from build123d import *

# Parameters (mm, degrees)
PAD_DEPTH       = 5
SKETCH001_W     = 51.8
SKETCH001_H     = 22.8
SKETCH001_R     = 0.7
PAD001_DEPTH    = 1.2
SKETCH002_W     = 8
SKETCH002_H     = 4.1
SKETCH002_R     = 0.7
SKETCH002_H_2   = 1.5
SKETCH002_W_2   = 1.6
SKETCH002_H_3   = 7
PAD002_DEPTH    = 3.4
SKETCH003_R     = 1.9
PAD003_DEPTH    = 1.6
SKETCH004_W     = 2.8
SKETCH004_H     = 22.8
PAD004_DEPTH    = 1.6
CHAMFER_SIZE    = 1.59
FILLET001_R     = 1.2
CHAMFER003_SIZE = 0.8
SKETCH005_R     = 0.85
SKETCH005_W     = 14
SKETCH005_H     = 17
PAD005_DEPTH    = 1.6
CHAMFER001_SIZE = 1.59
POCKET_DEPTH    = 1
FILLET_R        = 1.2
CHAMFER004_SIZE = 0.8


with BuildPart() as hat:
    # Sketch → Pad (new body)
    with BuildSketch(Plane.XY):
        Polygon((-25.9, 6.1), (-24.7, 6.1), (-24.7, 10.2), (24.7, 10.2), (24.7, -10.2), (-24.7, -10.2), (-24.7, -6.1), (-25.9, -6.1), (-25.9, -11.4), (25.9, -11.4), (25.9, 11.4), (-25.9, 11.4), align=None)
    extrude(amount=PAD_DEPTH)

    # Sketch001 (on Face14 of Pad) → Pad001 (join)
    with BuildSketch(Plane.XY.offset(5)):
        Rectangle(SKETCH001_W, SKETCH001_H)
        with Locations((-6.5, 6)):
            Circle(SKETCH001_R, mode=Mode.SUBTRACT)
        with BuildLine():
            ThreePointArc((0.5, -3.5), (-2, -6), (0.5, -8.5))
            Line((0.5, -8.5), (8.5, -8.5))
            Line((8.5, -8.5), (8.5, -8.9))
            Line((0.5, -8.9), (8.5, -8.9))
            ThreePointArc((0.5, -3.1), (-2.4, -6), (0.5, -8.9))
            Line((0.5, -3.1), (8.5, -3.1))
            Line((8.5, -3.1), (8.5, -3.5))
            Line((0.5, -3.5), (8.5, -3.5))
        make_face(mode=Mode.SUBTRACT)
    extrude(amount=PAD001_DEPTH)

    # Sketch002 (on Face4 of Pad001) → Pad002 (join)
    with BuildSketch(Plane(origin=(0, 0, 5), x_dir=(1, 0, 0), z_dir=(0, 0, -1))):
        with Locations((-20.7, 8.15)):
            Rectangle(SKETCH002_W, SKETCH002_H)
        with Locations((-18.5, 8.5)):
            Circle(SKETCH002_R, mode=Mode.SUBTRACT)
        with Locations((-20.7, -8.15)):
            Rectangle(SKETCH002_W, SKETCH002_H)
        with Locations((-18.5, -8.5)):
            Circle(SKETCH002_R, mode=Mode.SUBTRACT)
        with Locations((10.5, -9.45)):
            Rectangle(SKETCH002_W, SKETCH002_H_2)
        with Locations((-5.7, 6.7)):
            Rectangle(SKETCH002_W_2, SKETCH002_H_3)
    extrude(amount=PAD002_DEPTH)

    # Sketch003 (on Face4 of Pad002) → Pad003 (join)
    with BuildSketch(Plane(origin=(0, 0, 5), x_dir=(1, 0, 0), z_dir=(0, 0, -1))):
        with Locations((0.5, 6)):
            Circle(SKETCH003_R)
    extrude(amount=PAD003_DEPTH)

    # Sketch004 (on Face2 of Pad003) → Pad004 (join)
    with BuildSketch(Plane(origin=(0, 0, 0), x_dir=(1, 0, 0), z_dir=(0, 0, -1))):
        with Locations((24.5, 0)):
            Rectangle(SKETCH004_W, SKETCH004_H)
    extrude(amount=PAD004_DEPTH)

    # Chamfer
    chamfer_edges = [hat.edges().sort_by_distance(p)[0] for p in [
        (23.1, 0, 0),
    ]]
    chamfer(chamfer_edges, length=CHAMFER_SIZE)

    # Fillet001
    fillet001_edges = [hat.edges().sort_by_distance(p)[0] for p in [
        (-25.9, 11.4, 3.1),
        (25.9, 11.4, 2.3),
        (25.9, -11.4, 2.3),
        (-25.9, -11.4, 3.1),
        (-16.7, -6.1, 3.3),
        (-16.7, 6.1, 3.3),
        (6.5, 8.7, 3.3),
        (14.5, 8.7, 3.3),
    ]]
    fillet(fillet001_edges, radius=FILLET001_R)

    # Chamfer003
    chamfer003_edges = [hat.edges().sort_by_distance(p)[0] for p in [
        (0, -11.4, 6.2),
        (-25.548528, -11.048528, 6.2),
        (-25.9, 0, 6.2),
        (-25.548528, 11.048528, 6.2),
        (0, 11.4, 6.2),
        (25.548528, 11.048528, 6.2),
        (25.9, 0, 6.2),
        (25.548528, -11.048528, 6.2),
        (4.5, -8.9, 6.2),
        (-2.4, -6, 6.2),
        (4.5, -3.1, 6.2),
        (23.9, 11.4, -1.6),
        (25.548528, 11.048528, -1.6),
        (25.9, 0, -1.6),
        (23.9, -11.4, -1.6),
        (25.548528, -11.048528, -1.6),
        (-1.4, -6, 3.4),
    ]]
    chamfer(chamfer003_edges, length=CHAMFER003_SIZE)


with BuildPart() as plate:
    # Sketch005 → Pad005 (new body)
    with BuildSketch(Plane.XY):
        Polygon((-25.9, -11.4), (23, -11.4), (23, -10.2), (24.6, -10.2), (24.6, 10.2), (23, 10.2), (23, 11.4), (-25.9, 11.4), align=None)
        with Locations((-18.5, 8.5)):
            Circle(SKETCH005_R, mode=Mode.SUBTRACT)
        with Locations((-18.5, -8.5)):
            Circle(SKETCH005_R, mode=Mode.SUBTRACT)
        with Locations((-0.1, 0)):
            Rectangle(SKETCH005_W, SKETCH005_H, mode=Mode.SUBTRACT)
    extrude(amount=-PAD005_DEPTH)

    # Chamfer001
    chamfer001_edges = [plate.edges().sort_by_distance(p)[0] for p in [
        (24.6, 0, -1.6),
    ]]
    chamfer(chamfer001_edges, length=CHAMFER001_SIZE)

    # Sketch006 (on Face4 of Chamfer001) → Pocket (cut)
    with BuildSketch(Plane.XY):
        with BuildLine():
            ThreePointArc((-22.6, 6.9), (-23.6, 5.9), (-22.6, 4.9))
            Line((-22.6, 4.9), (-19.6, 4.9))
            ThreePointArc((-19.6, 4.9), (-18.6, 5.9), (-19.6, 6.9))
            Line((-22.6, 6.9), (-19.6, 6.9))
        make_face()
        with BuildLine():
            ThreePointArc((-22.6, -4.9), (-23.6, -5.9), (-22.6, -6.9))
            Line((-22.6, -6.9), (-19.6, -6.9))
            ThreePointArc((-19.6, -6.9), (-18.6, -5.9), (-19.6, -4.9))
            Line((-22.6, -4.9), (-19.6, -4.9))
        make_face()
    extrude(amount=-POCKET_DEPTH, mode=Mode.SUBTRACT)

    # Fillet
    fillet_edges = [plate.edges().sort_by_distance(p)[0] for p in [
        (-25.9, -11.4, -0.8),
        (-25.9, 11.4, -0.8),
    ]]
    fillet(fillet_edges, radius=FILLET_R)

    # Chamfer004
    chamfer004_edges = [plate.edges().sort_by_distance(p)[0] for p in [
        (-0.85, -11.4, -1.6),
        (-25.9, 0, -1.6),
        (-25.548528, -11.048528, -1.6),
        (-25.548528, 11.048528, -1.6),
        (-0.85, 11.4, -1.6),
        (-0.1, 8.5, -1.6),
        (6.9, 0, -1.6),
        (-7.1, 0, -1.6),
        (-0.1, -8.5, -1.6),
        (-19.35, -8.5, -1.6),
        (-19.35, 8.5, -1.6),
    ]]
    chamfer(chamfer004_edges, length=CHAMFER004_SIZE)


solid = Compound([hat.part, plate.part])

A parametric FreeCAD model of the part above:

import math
import FreeCAD as App
import Part
import Sketcher


def edges_at(feature, points):
    """Names of the edges that pass closest to the given points."""
    edges = feature.Shape.Edges
    near = lambda p: min(range(len(edges)), key=lambda i: edges[i].distToShape(Part.Vertex(*p))[0])
    return sorted({f"Edge{near(p) + 1}" for p in points})

doc = App.newDocument("Part")
body = doc.addObject("PartDesign::Body", "Body")

sketch1 = doc.addObject("Sketcher::SketchObject", "Sketch")
body.addObject(sketch1)
sketch1.AttachmentSupport = (doc.XY_Plane, [""])
sketch1.MapMode = "FlatFace"
sketch1.addGeometry([
    Part.LineSegment(App.Vector(-25.9, 6.1, 0), App.Vector(-24.7, 6.1, 0)),
    Part.LineSegment(App.Vector(-24.7, 6.1, 0), App.Vector(-24.7, 10.2, 0)),
    Part.LineSegment(App.Vector(-24.7, 10.2, 0), App.Vector(24.7, 10.2, 0)),
    Part.LineSegment(App.Vector(24.7, 10.2, 0), App.Vector(24.7, -10.2, 0)),
    Part.LineSegment(App.Vector(24.7, -10.2, 0), App.Vector(-24.7, -10.2, 0)),
    Part.LineSegment(App.Vector(-24.7, -10.2, 0), App.Vector(-24.7, -6.1, 0)),
    Part.LineSegment(App.Vector(-24.7, -6.1, 0), App.Vector(-25.9, -6.1, 0)),
    Part.LineSegment(App.Vector(-25.9, -6.1, 0), App.Vector(-25.9, -11.4, 0)),
    Part.LineSegment(App.Vector(-25.9, -11.4, 0), App.Vector(25.9, -11.4, 0)),
    Part.LineSegment(App.Vector(25.9, -11.4, 0), App.Vector(25.9, 11.4, 0)),
    Part.LineSegment(App.Vector(25.9, 11.4, 0), App.Vector(-25.9, 11.4, 0)),
    Part.LineSegment(App.Vector(-25.9, 11.4, 0), App.Vector(-25.9, 6.1, 0)),
], False)
sketch1.addConstraint([
    Sketcher.Constraint("Coincident", 0, 2, 1, 1),
    Sketcher.Constraint("Coincident", 1, 2, 2, 1),
    Sketcher.Constraint("Coincident", 2, 2, 3, 1),
    Sketcher.Constraint("Coincident", 3, 2, 4, 1),
    Sketcher.Constraint("Coincident", 4, 2, 5, 1),
    Sketcher.Constraint("Coincident", 5, 2, 6, 1),
    Sketcher.Constraint("Coincident", 6, 2, 7, 1),
    Sketcher.Constraint("Coincident", 7, 2, 8, 1),
    Sketcher.Constraint("Coincident", 8, 2, 9, 1),
    Sketcher.Constraint("Coincident", 9, 2, 10, 1),
    Sketcher.Constraint("Coincident", 10, 2, 11, 1),
    Sketcher.Constraint("Coincident", 11, 2, 0, 1),
    Sketcher.Constraint("Horizontal", 0),
    Sketcher.Constraint("Vertical", 1),
    Sketcher.Constraint("Horizontal", 2),
    Sketcher.Constraint("Vertical", 3),
    Sketcher.Constraint("Horizontal", 4),
    Sketcher.Constraint("Vertical", 5),
    Sketcher.Constraint("Horizontal", 6),
    Sketcher.Constraint("Vertical", 7),
    Sketcher.Constraint("Horizontal", 8),
    Sketcher.Constraint("Vertical", 9),
    Sketcher.Constraint("Horizontal", 10),
    Sketcher.Constraint("Vertical", 11),
    Sketcher.Constraint("Symmetric", 1, 2, 3, 2, -1, 1),
    Sketcher.Constraint("Symmetric", 7, 2, 9, 2, -1, 1),
    Sketcher.Constraint("Symmetric", 0, 2, 5, 2, -1),
    Sketcher.Constraint("Vertical", 7, 2, 10, 2),
    Sketcher.Constraint("DistanceX", 0, 1, 0, 2, 1.2),
    Sketcher.Constraint("DistanceX", 2, 1, 2, 2, 49.4),
    Sketcher.Constraint("DistanceY", 1, 1, 1, 2, 4.1),
    Sketcher.Constraint("DistanceY", 3, 2, 3, 1, 20.4),
    Sketcher.Constraint("DistanceY", 7, 2, 7, 1, 5.3),
])
pad1 = doc.addObject("PartDesign::Pad", "Pad")
body.addObject(pad1)
pad1.Profile = sketch1
pad1.Length = 5

sketch2 = doc.addObject("Sketcher::SketchObject", "Sketch001")
body.addObject(sketch2)
sketch2.AttachmentSupport = (doc.XY_Plane, [""])
sketch2.MapMode = "FlatFace"
sketch2.AttachmentOffset = App.Placement(App.Vector(0, 0, 5), App.Rotation())
sketch2.addGeometry([
    Part.LineSegment(App.Vector(-25.9, 11.4, 0), App.Vector(-25.9, -11.4, 0)),
    Part.LineSegment(App.Vector(-25.9, -11.4, 0), App.Vector(25.9, -11.4, 0)),
    Part.LineSegment(App.Vector(25.9, -11.4, 0), App.Vector(25.9, 11.4, 0)),
    Part.LineSegment(App.Vector(25.9, 11.4, 0), App.Vector(-25.9, 11.4, 0)),
    Part.LineSegment(App.Vector(8.5, -3.5, 0), App.Vector(0.5, -3.5, 0)),
    Part.ArcOfCircle(Part.Circle(App.Vector(0.5, -6, 0), App.Vector(0, 0, 1), 2.5), math.radians(90), math.radians(270)),
    Part.LineSegment(App.Vector(0.5, -8.5, 0), App.Vector(8.5, -8.5, 0)),
    Part.LineSegment(App.Vector(8.5, -8.5, 0), App.Vector(8.5, -8.9, 0)),
    Part.LineSegment(App.Vector(8.5, -8.9, 0), App.Vector(0.5, -8.9, 0)),
    Part.ArcOfCircle(Part.Circle(App.Vector(0.5, -6, 0), App.Vector(0, 0, 1), 2.9), math.radians(90), math.radians(270)),
    Part.LineSegment(App.Vector(0.5, -3.1, 0), App.Vector(8.5, -3.1, 0)),
    Part.LineSegment(App.Vector(8.5, -3.1, 0), App.Vector(8.5, -3.5, 0)),
    Part.Circle(App.Vector(-6.5, 6, 0), App.Vector(0, 0, 1), 0.7),
], False)
sketch2.addConstraint([
    Sketcher.Constraint("Coincident", 0, 2, 1, 1),
    Sketcher.Constraint("Coincident", 1, 2, 2, 1),
    Sketcher.Constraint("Coincident", 2, 2, 3, 1),
    Sketcher.Constraint("Coincident", 3, 2, 0, 1),
    Sketcher.Constraint("Tangent", 4, 2, 5, 1),
    Sketcher.Constraint("Tangent", 5, 2, 6, 1),
    Sketcher.Constraint("Coincident", 6, 2, 7, 1),
    Sketcher.Constraint("Coincident", 7, 2, 8, 1),
    Sketcher.Constraint("Tangent", 8, 2, 9, 2),
    Sketcher.Constraint("Tangent", 9, 1, 10, 1),
    Sketcher.Constraint("Coincident", 10, 2, 11, 1),
    Sketcher.Constraint("Coincident", 11, 2, 4, 1),
    Sketcher.Constraint("Vertical", 0),
    Sketcher.Constraint("Horizontal", 1),
    Sketcher.Constraint("Vertical", 2),
    Sketcher.Constraint("Horizontal", 3),
    Sketcher.Constraint("Horizontal", 4),
    Sketcher.Constraint("Horizontal", 6),
    Sketcher.Constraint("Vertical", 7),
    Sketcher.Constraint("Horizontal", 8),
    Sketcher.Constraint("Horizontal", 10),
    Sketcher.Constraint("Vertical", 11),
    Sketcher.Constraint("Coincident", 9, 3, 5, 3),
    Sketcher.Constraint("Symmetric", 0, 2, 2, 2, -1, 1),
    Sketcher.Constraint("Vertical", 7, 2, 10, 2),
    Sketcher.Constraint("Diameter", 12, 1.4),
    Sketcher.Constraint("Radius", 5, 2.5),
    Sketcher.Constraint("Radius", 9, 2.9),
    Sketcher.Constraint("DistanceX", 4, 2, 4, 1, 8.0),
    Sketcher.Constraint("DistanceX", 1, 1, 1, 2, 51.8),
    Sketcher.Constraint("DistanceY", 0, 2, 0, 1, 22.8),
    Sketcher.Constraint("DistanceY", 5, 3, -1, 1, 6.0),
    Sketcher.Constraint("DistanceY", -1, 1, 12, 3, 6.0),
    Sketcher.Constraint("DistanceX", 12, 3, 5, 3, 7.0),
    Sketcher.Constraint("DistanceX", -1, 1, 5, 3, 0.5),
])
pad2 = doc.addObject("PartDesign::Pad", "Pad001")
body.addObject(pad2)
pad2.Profile = sketch2
pad2.Length = 1.2

sketch3 = doc.addObject("Sketcher::SketchObject", "Sketch002")
body.addObject(sketch3)
sketch3.AttachmentSupport = (doc.XY_Plane, [""])
sketch3.MapMode = "FlatFace"
sketch3.AttachmentOffset = App.Placement(App.Vector(0, 0, 5), App.Rotation())
sketch3.addGeometry([
    Part.LineSegment(App.Vector(-24.7, -10.2, 0), App.Vector(-24.7, -6.1, 0)),
    Part.LineSegment(App.Vector(-24.7, -6.1, 0), App.Vector(-16.7, -6.1, 0)),
    Part.LineSegment(App.Vector(-16.7, -6.1, 0), App.Vector(-16.7, -10.2, 0)),
    Part.LineSegment(App.Vector(-16.7, -10.2, 0), App.Vector(-24.7, -10.2, 0)),
    Part.Circle(App.Vector(-18.5, -8.5, 0), App.Vector(0, 0, 1), 0.7),
    Part.LineSegment(App.Vector(-24.7, 6.1, 0), App.Vector(-24.7, 10.2, 0)),
    Part.LineSegment(App.Vector(-24.7, 10.2, 0), App.Vector(-16.7, 10.2, 0)),
    Part.LineSegment(App.Vector(-16.7, 10.2, 0), App.Vector(-16.7, 6.1, 0)),
    Part.LineSegment(App.Vector(-16.7, 6.1, 0), App.Vector(-24.7, 6.1, 0)),
    Part.Circle(App.Vector(-18.5, 8.5, 0), App.Vector(0, 0, 1), 0.7),
    Part.LineSegment(App.Vector(6.5, 8.7, 0), App.Vector(6.5, 10.2, 0)),
    Part.LineSegment(App.Vector(6.5, 10.2, 0), App.Vector(14.5, 10.2, 0)),
    Part.LineSegment(App.Vector(14.5, 10.2, 0), App.Vector(14.5, 8.7, 0)),
    Part.LineSegment(App.Vector(14.5, 8.7, 0), App.Vector(6.5, 8.7, 0)),
    Part.LineSegment(App.Vector(-6.5, -10.2, 0), App.Vector(-6.5, -3.2, 0)),
    Part.LineSegment(App.Vector(-6.5, -3.2, 0), App.Vector(-4.9, -3.2, 0)),
    Part.LineSegment(App.Vector(-4.9, -3.2, 0), App.Vector(-4.9, -10.2, 0)),
    Part.LineSegment(App.Vector(-4.9, -10.2, 0), App.Vector(-6.5, -10.2, 0)),
], False)
sketch3.addConstraint([
    Sketcher.Constraint("Coincident", 0, 2, 1, 1),
    Sketcher.Constraint("Coincident", 1, 2, 2, 1),
    Sketcher.Constraint("Coincident", 2, 2, 3, 1),
    Sketcher.Constraint("Coincident", 3, 2, 0, 1),
    Sketcher.Constraint("Coincident", 5, 2, 6, 1),
    Sketcher.Constraint("Coincident", 6, 2, 7, 1),
    Sketcher.Constraint("Coincident", 7, 2, 8, 1),
    Sketcher.Constraint("Coincident", 8, 2, 5, 1),
    Sketcher.Constraint("Coincident", 10, 2, 11, 1),
    Sketcher.Constraint("Coincident", 11, 2, 12, 1),
    Sketcher.Constraint("Coincident", 12, 2, 13, 1),
    Sketcher.Constraint("Coincident", 13, 2, 10, 1),
    Sketcher.Constraint("Coincident", 14, 2, 15, 1),
    Sketcher.Constraint("Coincident", 15, 2, 16, 1),
    Sketcher.Constraint("Coincident", 16, 2, 17, 1),
    Sketcher.Constraint("Coincident", 17, 2, 14, 1),
    Sketcher.Constraint("Vertical", 0),
    Sketcher.Constraint("Horizontal", 1),
    Sketcher.Constraint("Vertical", 2),
    Sketcher.Constraint("Horizontal", 3),
    Sketcher.Constraint("Vertical", 5),
    Sketcher.Constraint("Horizontal", 6),
    Sketcher.Constraint("Vertical", 7),
    Sketcher.Constraint("Horizontal", 8),
    Sketcher.Constraint("Vertical", 10),
    Sketcher.Constraint("Horizontal", 11),
    Sketcher.Constraint("Vertical", 12),
    Sketcher.Constraint("Horizontal", 13),
    Sketcher.Constraint("Vertical", 14),
    Sketcher.Constraint("Horizontal", 15),
    Sketcher.Constraint("Vertical", 16),
    Sketcher.Constraint("Horizontal", 17),
    Sketcher.Constraint("Equal", 4, 9),
    Sketcher.Constraint("Symmetric", 10, 2, 17, 2, -1, 1),
    Sketcher.Constraint("Symmetric", 4, 3, 9, 3, -1),
    Sketcher.Constraint("Symmetric", 3, 2, 5, 2, -1),
    Sketcher.Constraint("Symmetric", 1, 2, 7, 2, -1),
    Sketcher.Constraint("Horizontal", 6, 2, 10, 2),
    Sketcher.Constraint("Equal", 8, 11),
    Sketcher.Constraint("Diameter", 4, 1.4),
    Sketcher.Constraint("DistanceX", 1, 1, 1, 2, 8.0),
    Sketcher.Constraint("DistanceY", 14, 1, 14, 2, 7.0),
    Sketcher.Constraint("DistanceX", 15, 1, 15, 2, 1.6),
    Sketcher.Constraint("DistanceY", 0, 1, 0, 2, 4.1),
    Sketcher.Constraint("DistanceY", 10, 1, 10, 2, 1.5),
    Sketcher.Constraint("DistanceY", 4, 3, 9, 3, 17.0),
    Sketcher.Constraint("DistanceX", 9, 3, 10, 2, 25.0),
    Sketcher.Constraint("DistanceX", 4, 3, 14, 2, 12.0),
    Sketcher.Constraint("DistanceX", 0, 2, -1, 1, 24.7),
    Sketcher.Constraint("DistanceY", 0, 2, -1, 1, 6.1),
])
pad3 = doc.addObject("PartDesign::Pad", "Pad002")
body.addObject(pad3)
pad3.Profile = sketch3
pad3.Length = 3.4
pad3.Reversed = True

sketch4 = doc.addObject("Sketcher::SketchObject", "Sketch003")
body.addObject(sketch4)
sketch4.AttachmentSupport = (doc.XY_Plane, [""])
sketch4.MapMode = "FlatFace"
sketch4.AttachmentOffset = App.Placement(App.Vector(0, 0, 5), App.Rotation())
sketch4.addGeometry(Part.Circle(App.Vector(0.5, -6, 0), App.Vector(0, 0, 1), 1.9), False)
sketch4.addConstraint([
    Sketcher.Constraint("Diameter", 0, 3.8),
    Sketcher.Constraint("DistanceY", 0, 3, -1, 1, 6.0),
    Sketcher.Constraint("DistanceX", -1, 1, 0, 3, 0.5),
])
pad4 = doc.addObject("PartDesign::Pad", "Pad003")
body.addObject(pad4)
pad4.Profile = sketch4
pad4.Length = 1.6
pad4.Reversed = True

sketch5 = doc.addObject("Sketcher::SketchObject", "Sketch004")
body.addObject(sketch5)
sketch5.AttachmentSupport = (doc.XY_Plane, [""])
sketch5.MapMode = "FlatFace"
sketch5.addGeometry([
    Part.LineSegment(App.Vector(23.1, -11.4, 0), App.Vector(23.1, 11.4, 0)),
    Part.LineSegment(App.Vector(23.1, 11.4, 0), App.Vector(25.9, 11.4, 0)),
    Part.LineSegment(App.Vector(25.9, 11.4, 0), App.Vector(25.9, -11.4, 0)),
    Part.LineSegment(App.Vector(25.9, -11.4, 0), App.Vector(23.1, -11.4, 0)),
], False)
sketch5.addConstraint([
    Sketcher.Constraint("Coincident", 0, 2, 1, 1),
    Sketcher.Constraint("Coincident", 1, 2, 2, 1),
    Sketcher.Constraint("Coincident", 2, 2, 3, 1),
    Sketcher.Constraint("Coincident", 3, 2, 0, 1),
    Sketcher.Constraint("Vertical", 0),
    Sketcher.Constraint("Horizontal", 1),
    Sketcher.Constraint("Vertical", 2),
    Sketcher.Constraint("Horizontal", 3),
    Sketcher.Constraint("DistanceX", 1, 1, 1, 2, 2.8),
    Sketcher.Constraint("DistanceY", 0, 1, 0, 2, 22.8),
    Sketcher.Constraint("DistanceX", -1, 1, 0, 2, 23.1),
    Sketcher.Constraint("DistanceY", -1, 1, 0, 2, 11.4),
])
pad5 = doc.addObject("PartDesign::Pad", "Pad004")
body.addObject(pad5)
pad5.Profile = sketch5
pad5.Length = 1.6
pad5.Reversed = True
doc.recompute()

chamfer = doc.addObject("PartDesign::Chamfer", "Chamfer")
body.addObject(chamfer)
chamfer.Base = (pad5, edges_at(pad5, [(23.1, 0, 0)]))
chamfer.Size = 1.59
doc.recompute()

fillet = doc.addObject("PartDesign::Fillet", "Fillet")
body.addObject(fillet)
fillet.Base = (chamfer, edges_at(chamfer, [
    (-25.9, 11.4, 3.1),
    (25.9, 11.4, 2.3),
    (25.9, -11.4, 2.3),
    (-25.9, -11.4, 3.1),
    (-16.7, -6.1, 3.3),
    (-16.7, 6.1, 3.3),
    (6.5, 8.7, 3.3),
    (14.5, 8.7, 3.3),
]))
fillet.Radius = 1.2
doc.recompute()

chamfer2 = doc.addObject("PartDesign::Chamfer", "Chamfer001")
body.addObject(chamfer2)
chamfer2.Base = (fillet, edges_at(fillet, [
    (0, -11.4, 6.2),
    (-25.549, -11.049, 6.2),
    (-25.9, 0, 6.2),
    (-25.549, 11.049, 6.2),
    (0, 11.4, 6.2),
    (25.549, 11.049, 6.2),
    (25.9, 0, 6.2),
    (25.549, -11.049, 6.2),
    (4.5, -8.9, 6.2),
    (-2.4, -6, 6.2),
    (4.5, -3.1, 6.2),
    (23.9, 11.4, -1.6),
    (25.549, 11.049, -1.6),
    (25.9, 0, -1.6),
    (23.9, -11.4, -1.6),
    (25.549, -11.049, -1.6),
    (-1.4, -6, 3.4),
]))
chamfer2.Size = 0.8
body2 = doc.addObject("PartDesign::Body", "Body001")

sketch6 = doc.addObject("Sketcher::SketchObject", "Sketch005")
body2.addObject(sketch6)
sketch6.AttachmentSupport = (doc.getObject("XY_Plane001"), [""])
sketch6.MapMode = "FlatFace"
sketch6.addGeometry([
    Part.LineSegment(App.Vector(-25.9, -11.4, 0), App.Vector(23, -11.4, 0)),
    Part.LineSegment(App.Vector(23, -11.4, 0), App.Vector(23, -10.2, 0)),
    Part.LineSegment(App.Vector(23, -10.2, 0), App.Vector(24.6, -10.2, 0)),
    Part.LineSegment(App.Vector(24.6, -10.2, 0), App.Vector(24.6, 10.2, 0)),
    Part.LineSegment(App.Vector(24.6, 10.2, 0), App.Vector(23, 10.2, 0)),
    Part.LineSegment(App.Vector(23, 10.2, 0), App.Vector(23, 11.4, 0)),
    Part.LineSegment(App.Vector(23, 11.4, 0), App.Vector(-25.9, 11.4, 0)),
    Part.LineSegment(App.Vector(-25.9, 11.4, 0), App.Vector(-25.9, -11.4, 0)),
    Part.Circle(App.Vector(-18.5, -8.5, 0), App.Vector(0, 0, 1), 0.8),
    Part.Circle(App.Vector(-18.5, 8.5, 0), App.Vector(0, 0, 1), 0.8),
    Part.LineSegment(App.Vector(6.9, -8.5, 0), App.Vector(-7.1, -8.5, 0)),
    Part.LineSegment(App.Vector(-7.1, -8.5, 0), App.Vector(-7.1, 8.5, 0)),
    Part.LineSegment(App.Vector(-7.1, 8.5, 0), App.Vector(6.9, 8.5, 0)),
    Part.LineSegment(App.Vector(6.9, 8.5, 0), App.Vector(6.9, -8.5, 0)),
], False)
sketch6.addConstraint([
    Sketcher.Constraint("Coincident", 0, 2, 1, 1),
    Sketcher.Constraint("Coincident", 1, 2, 2, 1),
    Sketcher.Constraint("Coincident", 2, 2, 3, 1),
    Sketcher.Constraint("Coincident", 3, 2, 4, 1),
    Sketcher.Constraint("Coincident", 4, 2, 5, 1),
    Sketcher.Constraint("Coincident", 5, 2, 6, 1),
    Sketcher.Constraint("Coincident", 6, 2, 7, 1),
    Sketcher.Constraint("Coincident", 7, 2, 0, 1),
    Sketcher.Constraint("Coincident", 10, 2, 11, 1),
    Sketcher.Constraint("Coincident", 11, 2, 12, 1),
    Sketcher.Constraint("Coincident", 12, 2, 13, 1),
    Sketcher.Constraint("Coincident", 13, 2, 10, 1),
    Sketcher.Constraint("Horizontal", 0),
    Sketcher.Constraint("Vertical", 1),
    Sketcher.Constraint("Horizontal", 2),
    Sketcher.Constraint("Vertical", 3),
    Sketcher.Constraint("Horizontal", 4),
    Sketcher.Constraint("Vertical", 5),
    Sketcher.Constraint("Horizontal", 6),
    Sketcher.Constraint("Vertical", 7),
    Sketcher.Constraint("Horizontal", 10),
    Sketcher.Constraint("Vertical", 11),
    Sketcher.Constraint("Horizontal", 12),
    Sketcher.Constraint("Vertical", 13),
    Sketcher.Constraint("Equal", 8, 9),
    Sketcher.Constraint("Symmetric", 8, 3, 9, 3, -1),
    Sketcher.Constraint("Symmetric", 1, 2, 4, 2, -1),
    Sketcher.Constraint("Horizontal", 8, 3, 10, 2),
    Sketcher.Constraint("Horizontal", 9, 3, 11, 2),
    Sketcher.Constraint("Equal", 1, 5),
    Sketcher.Constraint("Diameter", 8, 1.7),
    Sketcher.Constraint("DistanceX", 10, 2, 10, 1, 14.0),
    Sketcher.Constraint("DistanceY", 11, 1, 11, 2, 17.0),
    Sketcher.Constraint("DistanceX", 0, 1, 0, 2, 48.9),
    Sketcher.Constraint("DistanceX", 2, 1, 2, 2, 1.6),
    Sketcher.Constraint("DistanceY", 1, 1, 1, 2, 1.2),
    Sketcher.Constraint("DistanceY", 3, 1, 3, 2, 20.4),
    Sketcher.Constraint("DistanceX", -1, 1, 0, 2, 23.0),
    Sketcher.Constraint("DistanceX", 8, 3, -1, 1, 18.5),
    Sketcher.Constraint("DistanceX", 10, 2, -1, 1, 7.1),
])
pad6 = doc.addObject("PartDesign::Pad", "Pad005")
body2.addObject(pad6)
pad6.Profile = sketch6
pad6.Length = 1.6
pad6.Reversed = True
doc.recompute()

chamfer3 = doc.addObject("PartDesign::Chamfer", "Chamfer002")
body2.addObject(chamfer3)
chamfer3.Base = (pad6, edges_at(pad6, [(24.6, 0, -1.6)]))
chamfer3.Size = 1.59

sketch7 = doc.addObject("Sketcher::SketchObject", "Sketch006")
body2.addObject(sketch7)
sketch7.AttachmentSupport = (doc.getObject("XY_Plane001"), [""])
sketch7.MapMode = "FlatFace"
sketch7.addGeometry([
    Part.ArcOfCircle(Part.Circle(App.Vector(-22.6, 5.9, 0), App.Vector(0, 0, 1), 1), math.radians(90), math.radians(270)),
    Part.LineSegment(App.Vector(-22.6, 4.9, 0), App.Vector(-19.6, 4.9, 0)),
    Part.ArcOfCircle(Part.Circle(App.Vector(-19.6, 5.9, 0), App.Vector(0, 0, 1), 1), math.radians(-90), math.radians(90)),
    Part.LineSegment(App.Vector(-19.6, 6.9, 0), App.Vector(-22.6, 6.9, 0)),
    Part.ArcOfCircle(Part.Circle(App.Vector(-22.6, -5.9, 0), App.Vector(0, 0, 1), 1), math.radians(90), math.radians(270)),
    Part.LineSegment(App.Vector(-22.6, -6.9, 0), App.Vector(-19.6, -6.9, 0)),
    Part.ArcOfCircle(Part.Circle(App.Vector(-19.6, -5.9, 0), App.Vector(0, 0, 1), 1), math.radians(-90), math.radians(90)),
    Part.LineSegment(App.Vector(-19.6, -4.9, 0), App.Vector(-22.6, -4.9, 0)),
], False)
sketch7.addConstraint([
    Sketcher.Constraint("Tangent", 0, 2, 1, 1),
    Sketcher.Constraint("Tangent", 1, 2, 2, 1),
    Sketcher.Constraint("Tangent", 2, 2, 3, 1),
    Sketcher.Constraint("Tangent", 3, 2, 0, 1),
    Sketcher.Constraint("Tangent", 4, 2, 5, 1),
    Sketcher.Constraint("Tangent", 5, 2, 6, 1),
    Sketcher.Constraint("Tangent", 6, 2, 7, 1),
    Sketcher.Constraint("Tangent", 7, 2, 4, 1),
    Sketcher.Constraint("Horizontal", 1),
    Sketcher.Constraint("Horizontal", 3),
    Sketcher.Constraint("Horizontal", 5),
    Sketcher.Constraint("Horizontal", 7),
    Sketcher.Constraint("Equal", 2, 4),
    Sketcher.Constraint("Symmetric", 0, 3, 4, 3, -1),
    Sketcher.Constraint("Vertical", 2, 3, 6, 3),
    Sketcher.Constraint("Radius", 0, 1.0),
    Sketcher.Constraint("DistanceX", 1, 1, 1, 2, 3.0),
    Sketcher.Constraint("DistanceX", 0, 3, -1, 1, 22.6),
    Sketcher.Constraint("DistanceY", -1, 1, 0, 3, 5.9),
])
pocket1 = doc.addObject("PartDesign::Pocket", "Pocket")
body2.addObject(pocket1)
pocket1.Profile = sketch7
pocket1.Length = 1
doc.recompute()

fillet2 = doc.addObject("PartDesign::Fillet", "Fillet001")
body2.addObject(fillet2)
fillet2.Base = (pocket1, edges_at(pocket1, [(-25.9, -11.4, -0.8), (-25.9, 11.4, -0.8)]))
fillet2.Radius = 1.2
doc.recompute()

chamfer4 = doc.addObject("PartDesign::Chamfer", "Chamfer003")
body2.addObject(chamfer4)
chamfer4.Base = (fillet2, edges_at(fillet2, [
    (-0.85, -11.4, -1.6),
    (-25.9, 0, -1.6),
    (-25.549, -11.049, -1.6),
    (-25.549, 11.049, -1.6),
    (-0.85, 11.4, -1.6),
    (-0.1, 8.5, -1.6),
    (6.9, 0, -1.6),
    (-7.1, 0, -1.6),
    (-0.1, -8.5, -1.6),
    (-19.35, -8.5, -1.6),
    (-19.35, 8.5, -1.6),
]))
chamfer4.Size = 0.8

doc.recompute()
